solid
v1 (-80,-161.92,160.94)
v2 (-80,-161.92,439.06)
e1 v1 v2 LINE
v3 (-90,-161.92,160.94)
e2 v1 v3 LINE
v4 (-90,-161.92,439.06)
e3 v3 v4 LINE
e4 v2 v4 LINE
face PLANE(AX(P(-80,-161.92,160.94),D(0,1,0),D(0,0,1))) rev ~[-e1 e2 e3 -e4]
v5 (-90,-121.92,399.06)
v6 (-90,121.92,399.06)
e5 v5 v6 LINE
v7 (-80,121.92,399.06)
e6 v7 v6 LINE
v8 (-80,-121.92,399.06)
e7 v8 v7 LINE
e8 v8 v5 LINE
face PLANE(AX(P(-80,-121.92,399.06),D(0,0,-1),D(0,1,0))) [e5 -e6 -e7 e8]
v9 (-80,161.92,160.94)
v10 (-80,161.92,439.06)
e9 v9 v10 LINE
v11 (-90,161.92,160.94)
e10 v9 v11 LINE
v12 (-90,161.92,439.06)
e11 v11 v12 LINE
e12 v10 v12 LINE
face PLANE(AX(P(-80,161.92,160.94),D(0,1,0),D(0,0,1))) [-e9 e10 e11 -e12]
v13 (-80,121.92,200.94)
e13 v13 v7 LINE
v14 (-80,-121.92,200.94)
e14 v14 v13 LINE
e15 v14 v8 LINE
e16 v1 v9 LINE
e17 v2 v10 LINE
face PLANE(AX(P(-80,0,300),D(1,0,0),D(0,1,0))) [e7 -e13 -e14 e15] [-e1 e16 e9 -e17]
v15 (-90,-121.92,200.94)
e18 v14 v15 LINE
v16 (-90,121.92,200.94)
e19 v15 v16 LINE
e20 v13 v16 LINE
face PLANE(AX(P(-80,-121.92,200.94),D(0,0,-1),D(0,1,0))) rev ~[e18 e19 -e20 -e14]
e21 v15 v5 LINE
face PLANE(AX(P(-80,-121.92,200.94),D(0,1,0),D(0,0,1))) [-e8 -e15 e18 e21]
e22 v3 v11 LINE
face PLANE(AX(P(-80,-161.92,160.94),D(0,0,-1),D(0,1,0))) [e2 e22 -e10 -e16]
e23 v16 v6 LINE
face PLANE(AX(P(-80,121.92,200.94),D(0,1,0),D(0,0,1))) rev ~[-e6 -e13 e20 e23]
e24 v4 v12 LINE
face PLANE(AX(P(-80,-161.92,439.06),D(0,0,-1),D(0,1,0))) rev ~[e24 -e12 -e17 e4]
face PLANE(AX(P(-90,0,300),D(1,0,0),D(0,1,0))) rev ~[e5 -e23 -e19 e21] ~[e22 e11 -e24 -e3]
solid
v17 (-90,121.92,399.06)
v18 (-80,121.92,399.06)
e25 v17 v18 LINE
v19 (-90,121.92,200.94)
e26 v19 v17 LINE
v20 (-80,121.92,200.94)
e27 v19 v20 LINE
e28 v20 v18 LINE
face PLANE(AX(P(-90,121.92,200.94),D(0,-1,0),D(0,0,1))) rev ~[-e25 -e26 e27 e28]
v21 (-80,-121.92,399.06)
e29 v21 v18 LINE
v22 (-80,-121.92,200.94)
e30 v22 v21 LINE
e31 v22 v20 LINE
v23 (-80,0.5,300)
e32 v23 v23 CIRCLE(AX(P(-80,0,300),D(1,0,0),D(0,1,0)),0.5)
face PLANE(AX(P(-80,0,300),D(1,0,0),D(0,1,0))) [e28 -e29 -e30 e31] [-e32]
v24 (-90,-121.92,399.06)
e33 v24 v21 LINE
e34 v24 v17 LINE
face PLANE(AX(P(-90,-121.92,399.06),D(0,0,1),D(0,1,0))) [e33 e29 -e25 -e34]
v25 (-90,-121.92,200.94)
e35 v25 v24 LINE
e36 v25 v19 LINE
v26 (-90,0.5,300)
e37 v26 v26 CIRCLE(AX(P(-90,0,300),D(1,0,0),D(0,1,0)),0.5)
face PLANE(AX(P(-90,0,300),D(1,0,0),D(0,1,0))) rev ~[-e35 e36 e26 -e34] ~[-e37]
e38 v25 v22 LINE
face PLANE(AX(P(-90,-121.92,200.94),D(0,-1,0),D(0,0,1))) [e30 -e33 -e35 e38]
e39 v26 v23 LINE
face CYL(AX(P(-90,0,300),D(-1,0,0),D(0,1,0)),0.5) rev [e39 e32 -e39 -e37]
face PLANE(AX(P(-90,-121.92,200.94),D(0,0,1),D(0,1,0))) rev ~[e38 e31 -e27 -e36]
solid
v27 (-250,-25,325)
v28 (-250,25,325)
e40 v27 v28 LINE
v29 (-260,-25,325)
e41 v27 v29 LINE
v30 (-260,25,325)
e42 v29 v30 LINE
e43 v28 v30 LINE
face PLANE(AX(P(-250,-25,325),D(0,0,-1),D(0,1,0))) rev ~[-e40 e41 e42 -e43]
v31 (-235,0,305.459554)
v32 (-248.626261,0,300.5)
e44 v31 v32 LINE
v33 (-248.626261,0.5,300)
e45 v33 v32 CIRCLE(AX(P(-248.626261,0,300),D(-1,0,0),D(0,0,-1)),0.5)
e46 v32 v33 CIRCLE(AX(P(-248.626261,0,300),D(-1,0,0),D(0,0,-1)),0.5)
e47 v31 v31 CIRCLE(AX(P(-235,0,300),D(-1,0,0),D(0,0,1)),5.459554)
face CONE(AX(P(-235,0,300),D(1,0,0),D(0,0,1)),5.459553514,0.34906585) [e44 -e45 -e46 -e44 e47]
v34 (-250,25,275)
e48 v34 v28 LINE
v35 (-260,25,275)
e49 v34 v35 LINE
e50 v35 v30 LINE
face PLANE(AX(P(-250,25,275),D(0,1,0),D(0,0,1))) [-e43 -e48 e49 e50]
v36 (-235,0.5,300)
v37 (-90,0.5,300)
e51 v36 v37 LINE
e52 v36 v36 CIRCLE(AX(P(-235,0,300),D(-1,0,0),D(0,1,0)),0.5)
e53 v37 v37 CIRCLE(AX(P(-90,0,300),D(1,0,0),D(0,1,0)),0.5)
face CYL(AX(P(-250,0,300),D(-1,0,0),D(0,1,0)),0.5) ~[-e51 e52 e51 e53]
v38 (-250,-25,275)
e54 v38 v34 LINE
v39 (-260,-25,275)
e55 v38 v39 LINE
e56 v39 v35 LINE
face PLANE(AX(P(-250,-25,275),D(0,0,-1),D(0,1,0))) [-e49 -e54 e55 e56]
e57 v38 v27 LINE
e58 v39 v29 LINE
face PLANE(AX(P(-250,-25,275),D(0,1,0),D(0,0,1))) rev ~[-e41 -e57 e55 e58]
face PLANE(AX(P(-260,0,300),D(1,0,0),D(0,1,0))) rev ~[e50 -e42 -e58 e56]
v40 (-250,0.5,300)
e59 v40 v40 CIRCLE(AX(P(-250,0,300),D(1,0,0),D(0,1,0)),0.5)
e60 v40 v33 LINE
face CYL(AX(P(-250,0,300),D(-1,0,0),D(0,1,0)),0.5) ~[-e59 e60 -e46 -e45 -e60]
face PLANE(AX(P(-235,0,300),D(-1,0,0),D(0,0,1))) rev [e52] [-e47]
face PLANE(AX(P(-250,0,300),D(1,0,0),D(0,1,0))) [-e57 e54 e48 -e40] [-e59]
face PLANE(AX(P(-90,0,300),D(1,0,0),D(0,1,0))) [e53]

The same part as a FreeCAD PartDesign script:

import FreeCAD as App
import Part
import Sketcher

V = App.Vector
Q = App.Units.Quantity


def edges_at(feature, points):
    """Names of the edges that pass closest to the given points."""
    edges = feature.Shape.Edges
    near = lambda p: min(range(len(edges)), key=lambda i: edges[i].distToShape(Part.Vertex(*p))[0])
    return sorted({f"Edge{near(p) + 1}" for p in points})

doc = App.newDocument("Part")
body = doc.addObject("PartDesign::Body", "Body")

sketch1 = body.newObject("Sketcher::SketchObject", "Sketch")
sketch1.AttachmentSupport = (doc.getObject("XY_Plane"), [""])
sketch1.MapMode = "FlatFace"
sketch1.addGeometry(Part.LineSegment(V(-350, 350, 0), V(-350, -350, 0)), False)
sketch1.addGeometry(Part.LineSegment(V(-350, -350, 0), V(350, -350, 0)), False)
sketch1.addGeometry(Part.LineSegment(V(350, -350, 0), V(350, 350, 0)), False)
sketch1.addGeometry(Part.LineSegment(V(350, 350, 0), V(-350, 350, 0)), False)
sketch1.addConstraint(Sketcher.Constraint("Coincident", 0, 2, 1, 1))
sketch1.addConstraint(Sketcher.Constraint("Coincident", 1, 2, 2, 1))
sketch1.addConstraint(Sketcher.Constraint("Coincident", 2, 2, 3, 1))
sketch1.addConstraint(Sketcher.Constraint("Coincident", 3, 2, 0, 1))
sketch1.addConstraint(Sketcher.Constraint("Vertical", 0))
sketch1.addConstraint(Sketcher.Constraint("Horizontal", 1))
sketch1.addConstraint(Sketcher.Constraint("Vertical", 2))
sketch1.addConstraint(Sketcher.Constraint("Horizontal", 3))
sketch1.addConstraint(Sketcher.Constraint("Symmetric", 0, 2, 2, 2, -1, 1))
sketch1.addConstraint(Sketcher.Constraint("Equal", 3, 0))
sketch1.addConstraint(Sketcher.Constraint("DistanceX", 1, 1, 1, 2, Q("700 mm")))
pad1 = body.newObject("PartDesign::Pad", "Pad")
pad1.Profile = sketch1
pad1.Length = 70
pad1.Reversed = True

sketch2 = body.newObject("Sketcher::SketchObject", "Sketch001")
sketch2.AttachmentSupport = (doc.getObject("XY_Plane"), [""])
sketch2.MapMode = "FlatFace"
sketch2.addGeometry(Part.Circle(V(0, 0, 0), V(0, 0, 1), 285), False)
sketch2.addConstraint(Sketcher.Constraint("Coincident", 0, 3, -1, 1))
sketch2.addConstraint(Sketcher.Constraint("Diameter", 0, Q("570.37818 mm")))
pad2 = body.newObject("PartDesign::Pad", "Pad001")
pad2.Profile = sketch2
pad2.Length = 10

sketch3 = body.newObject("Sketcher::SketchObject", "Sketch002")
sketch3.AttachmentSupport = (doc.getObject("XY_Plane"), [""])
sketch3.MapMode = "FlatFace"
sketch3.AttachmentOffset = App.Placement(V(0, 0, 10), App.Rotation())
sketch3.addGeometry(Part.Circle(V(0, 0, 0), V(0, 0, 1), 219), False)
sketch3.addConstraint(Sketcher.Constraint("Coincident", 0, 3, -1, 1))
sketch3.addConstraint(Sketcher.Constraint("Diameter", 0, Q("438.393278 mm")))
pad3 = body.newObject("PartDesign::Pad", "Pad002")
pad3.Profile = sketch3
pad3.Length = 25

sketch4 = body.newObject("Sketcher::SketchObject", "Sketch003")
sketch4.AttachmentSupport = (doc.getObject("XY_Plane"), [""])
sketch4.MapMode = "FlatFace"
sketch4.AttachmentOffset = App.Placement(V(0, 0, 35), App.Rotation())
sketch4.addGeometry(Part.Circle(V(0, 0, 0), V(0, 0, 1), 147), False)
sketch4.addConstraint(Sketcher.Constraint("Coincident", 0, 3, -1, 1))
sketch4.addConstraint(Sketcher.Constraint("Diameter", 0, Q("293.114728 mm")))
pad4 = body.newObject("PartDesign::Pad", "Pad003")
pad4.Profile = sketch4
pad4.Length = 25
doc.recompute()

chamfer = body.newObject("PartDesign::Chamfer", "Chamfer")
chamfer.Base = (pad4, edges_at(pad4, [(-146.557, 0, 60), (-219.197, 0, 35), (-285.189, 0, 10)]))
chamfer.Size = 5
doc.recompute()

fillet = body.newObject("PartDesign::Fillet", "Fillet")
fillet.Base = (chamfer, edges_at(chamfer, [
    (0, -350, 0),
    (0, 350, 0),
    (350, 0, 0),
    (-350, 0, 0),
    (-285.189, 0, 0),
]))
fillet.Radius = 2
body2 = doc.addObject("PartDesign::Body", "Body001")

sketch5 = body2.newObject("Sketcher::SketchObject", "Sketch004")
sketch5.AttachmentSupport = (doc.getObject("YZ_Plane001"), [""])
sketch5.MapMode = "FlatFace"
sketch5.AttachmentOffset = App.Placement(V(0, 0, -250), App.Rotation())
sketch5.addGeometry(Part.LineSegment(V(-25, 325, 0), V(-25, 275, 0)), False)
sketch5.addGeometry(Part.LineSegment(V(-25, 275, 0), V(25, 275, 0)), False)
sketch5.addGeometry(Part.LineSegment(V(25, 275, 0), V(25, 325, 0)), False)
sketch5.addGeometry(Part.LineSegment(V(25, 325, 0), V(-25, 325, 0)), False)
sketch5.addConstraint(Sketcher.Constraint("Coincident", 0, 2, 1, 1))
sketch5.addConstraint(Sketcher.Constraint("Coincident", 1, 2, 2, 1))
sketch5.addConstraint(Sketcher.Constraint("Coincident", 2, 2, 3, 1))
sketch5.addConstraint(Sketcher.Constraint("Coincident", 3, 2, 0, 1))
sketch5.addConstraint(Sketcher.Constraint("Vertical", 0))
sketch5.addConstraint(Sketcher.Constraint("Horizontal", 1))
sketch5.addConstraint(Sketcher.Constraint("Vertical", 2))
sketch5.addConstraint(Sketcher.Constraint("Horizontal", 3))
sketch5.addConstraint(Sketcher.Constraint("Equal", 3, 0))
sketch5.addConstraint(Sketcher.Constraint("DistanceX", 1, 1, 1, 2, Q("50 mm")))
sketch5.addConstraint(Sketcher.Constraint("DistanceX", 0, 2, -1, 1, Q("25 mm")))
sketch5.addConstraint(Sketcher.Constraint("DistanceY", -1, 1, 0, 2, Q("275 mm")))
pad5 = body2.newObject("PartDesign::Pad", "Pad004")
pad5.Profile = sketch5
pad5.Length = 10
pad5.Reversed = True

sketch6 = body2.newObject("Sketcher::SketchObject", "Sketch005")
sketch6.AttachmentSupport = (doc.getObject("YZ_Plane001"), [""])
sketch6.MapMode = "FlatFace"
sketch6.AttachmentOffset = App.Placement(V(0, 0, -250), App.Rotation())
sketch6.addGeometry(Part.Circle(V(0, 300, 0), V(0, 0, 1), 0.5), False)
sketch6.addConstraint(Sketcher.Constraint("PointOnObject", 0, 3, -2))
sketch6.addConstraint(Sketcher.Constraint("Diameter", 0, Q("1 mm")))
sketch6.addConstraint(Sketcher.Constraint("DistanceY", -1, 1, 0, 3, Q("300 mm")))
pad6 = body2.newObject("PartDesign::Pad", "Pad005")
pad6.Profile = sketch6
pad6.Length = 160

sketch7 = body2.newObject("Sketcher::SketchObject", "Sketch006")
sketch7.AttachmentSupport = (doc.getObject("XZ_Plane001"), [""])
sketch7.MapMode = "FlatFace"
sketch7.addGeometry(Part.LineSegment(V(-235, 305, 0), V(-250, 300, 0)), False)
sketch7.addGeometry(Part.LineSegment(V(-250, 300, 0), V(-235, 300, 0)), False)
sketch7.addGeometry(Part.LineSegment(V(-235, 300, 0), V(-235, 305, 0)), False)
sketch7.addGeometry(Part.LineSegment(V(-235, 300, 0), V(-250, 300, 0)), True)
sketch7.addConstraint(Sketcher.Constraint("Coincident", 0, 2, 1, 1))
sketch7.addConstraint(Sketcher.Constraint("Coincident", 1, 2, 2, 1))
sketch7.addConstraint(Sketcher.Constraint("Coincident", 2, 2, 0, 1))
sketch7.addConstraint(Sketcher.Constraint("Horizontal", 1))
sketch7.addConstraint(Sketcher.Constraint("Vertical", 2))
sketch7.addConstraint(Sketcher.Constraint("Horizontal", 3))
sketch7.addConstraint(Sketcher.Constraint("Coincident", 3, 1, 1, 2))
sketch7.addConstraint(Sketcher.Constraint("Equal", 1, 3))
sketch7.addConstraint(Sketcher.Constraint("DistanceX", 1, 1, 1, 2, Q("15 mm")))
sketch7.addConstraint(Sketcher.Constraint("Angle", 0, Q("-160 deg")))
sketch7.addConstraint(Sketcher.Constraint("DistanceX", 0, 2, -1, 1, Q("250 mm")))
sketch7.addConstraint(Sketcher.Constraint("DistanceY", -1, 1, 0, 2, Q("300 mm")))
revolution = body2.newObject("PartDesign::Revolution", "Revolution")
revolution.Profile = sketch7
revolution.ReferenceAxis = (sketch7, ["Axis0"])
revolution.Angle = 360
body3 = doc.addObject("PartDesign::Body", "Body002")

sketch8 = body3.newObject("Sketcher::SketchObject", "Sketch007")
sketch8.AttachmentSupport = (doc.getObject("YZ_Plane002"), [""])
sketch8.MapMode = "FlatFace"
sketch8.AttachmentOffset = App.Placement(V(0, 0, -90), App.Rotation())
sketch8.addGeometry(Part.LineSegment(V(-121.9, 399.1, 0), V(-121.9, 200.9, 0)), False)
sketch8.addGeometry(Part.LineSegment(V(-121.9, 200.9, 0), V(121.9, 200.9, 0)), False)
sketch8.addGeometry(Part.LineSegment(V(121.9, 200.9, 0), V(121.9, 399.1, 0)), False)
sketch8.addGeometry(Part.LineSegment(V(121.9, 399.1, 0), V(-121.9, 399.1, 0)), False)
sketch8.addGeometry(Part.Circle(V(0, 300, 0), V(0, 0, 1), 0.5), False)
sketch8.addConstraint(Sketcher.Constraint("Coincident", 0, 2, 1, 1))
sketch8.addConstraint(Sketcher.Constraint("Coincident", 1, 2, 2, 1))
sketch8.addConstraint(Sketcher.Constraint("Coincident", 2, 2, 3, 1))
sketch8.addConstraint(Sketcher.Constraint("Coincident", 3, 2, 0, 1))
sketch8.addConstraint(Sketcher.Constraint("Vertical", 0))
sketch8.addConstraint(Sketcher.Constraint("Horizontal", 1))
sketch8.addConstraint(Sketcher.Constraint("Vertical", 2))
sketch8.addConstraint(Sketcher.Constraint("Horizontal", 3))
sketch8.addConstraint(Sketcher.Constraint("PointOnObject", 4, 3, -2))
sketch8.addConstraint(Sketcher.Constraint("Diameter", 4, Q("1 mm")))
sketch8.addConstraint(Sketcher.Constraint("DistanceY", -1, 1, 4, 3, Q("300 mm")))
sketch8.addConstraint(Sketcher.Constraint("DistanceX", 1, 1, 1, 2, Q("243.84 mm")))
sketch8.addConstraint(Sketcher.Constraint("DistanceY", 0, 2, 0, 1, Q("198.12 mm")))
sketch8.addConstraint(Sketcher.Constraint("DistanceX", 0, 2, -1, 1, Q("121.92 mm")))
sketch8.addConstraint(Sketcher.Constraint("DistanceY", -1, 1, 0, 2, Q("200.94 mm")))
pad7 = body3.newObject("PartDesign::Pad", "Pad006")
pad7.Profile = sketch8
pad7.Length = 10
body4 = doc.addObject("PartDesign::Body", "Body003")

sketch9 = body4.newObject("Sketcher::SketchObject", "Sketch008")
sketch9.AttachmentSupport = (doc.getObject("YZ_Plane003"), [""])
sketch9.MapMode = "FlatFace"
sketch9.AttachmentOffset = App.Placement(V(0, 0, -80), App.Rotation())
sketch9.addGeometry(Part.LineSegment(V(-162, 439, 0), V(-162, 161, 0)), False)
sketch9.addGeometry(Part.LineSegment(V(-162, 161, 0), V(162, 161, 0)), False)
sketch9.addGeometry(Part.LineSegment(V(162, 161, 0), V(162, 439, 0)), False)
sketch9.addGeometry(Part.LineSegment(V(162, 439, 0), V(-162, 439, 0)), False)
sketch9.addGeometry(Part.LineSegment(V(122, 201, 0), V(-122, 201, 0)), False)
sketch9.addGeometry(Part.LineSegment(V(-122, 201, 0), V(-122, 399, 0)), False)
sketch9.addGeometry(Part.LineSegment(V(-122, 399, 0), V(122, 399, 0)), False)
sketch9.addGeometry(Part.LineSegment(V(122, 399, 0), V(122, 201, 0)), False)
sketch9.addConstraint(Sketcher.Constraint("Coincident", 0, 2, 1, 1))
sketch9.addConstraint(Sketcher.Constraint("Coincident", 1, 2, 2, 1))
sketch9.addConstraint(Sketcher.Constraint("Coincident", 2, 2, 3, 1))
sketch9.addConstraint(Sketcher.Constraint("Coincident", 3, 2, 0, 1))
sketch9.addConstraint(Sketcher.Constraint("Coincident", 4, 2, 5, 1))
sketch9.addConstraint(Sketcher.Constraint("Coincident", 5, 2, 6, 1))
sketch9.addConstraint(Sketcher.Constraint("Coincident", 6, 2, 7, 1))
sketch9.addConstraint(Sketcher.Constraint("Coincident", 7, 2, 4, 1))
sketch9.addConstraint(Sketcher.Constraint("Vertical", 0))
sketch9.addConstraint(Sketcher.Constraint("Horizontal", 1))
sketch9.addConstraint(Sketcher.Constraint("Vertical", 2))
sketch9.addConstraint(Sketcher.Constraint("Horizontal", 3))
sketch9.addConstraint(Sketcher.Constraint("Horizontal", 4))
sketch9.addConstraint(Sketcher.Constraint("Vertical", 5))
sketch9.addConstraint(Sketcher.Constraint("Horizontal", 6))
sketch9.addConstraint(Sketcher.Constraint("Vertical", 7))
sketch9.addConstraint(Sketcher.Constraint("DistanceX", 0, 2, 4, 2, Q("40 mm")))
sketch9.addConstraint(Sketcher.Constraint("DistanceY", 0, 2, 4, 2, Q("40 mm")))
sketch9.addConstraint(Sketcher.Constraint("DistanceY", 5, 2, 3, 2, Q("40 mm")))
sketch9.addConstraint(Sketcher.Constraint("DistanceX", 6, 2, 2, 2, Q("40 mm")))
sketch9.addConstraint(Sketcher.Constraint("DistanceX", 1, 1, 1, 2, Q("323.84 mm")))
sketch9.addConstraint(Sketcher.Constraint("DistanceY", 0, 2, 0, 1, Q("278.12 mm")))
sketch9.addConstraint(Sketcher.Constraint("DistanceX", 0, 2, -1, 1, Q("161.92 mm")))
sketch9.addConstraint(Sketcher.Constraint("DistanceY", -1, 1, 0, 2, Q("160.94 mm")))
pad8 = body4.newObject("PartDesign::Pad", "Pad007")
pad8.Profile = sketch9
pad8.Length = 10
pad8.Reversed = True
body.Visibility = False

doc.recompute()
